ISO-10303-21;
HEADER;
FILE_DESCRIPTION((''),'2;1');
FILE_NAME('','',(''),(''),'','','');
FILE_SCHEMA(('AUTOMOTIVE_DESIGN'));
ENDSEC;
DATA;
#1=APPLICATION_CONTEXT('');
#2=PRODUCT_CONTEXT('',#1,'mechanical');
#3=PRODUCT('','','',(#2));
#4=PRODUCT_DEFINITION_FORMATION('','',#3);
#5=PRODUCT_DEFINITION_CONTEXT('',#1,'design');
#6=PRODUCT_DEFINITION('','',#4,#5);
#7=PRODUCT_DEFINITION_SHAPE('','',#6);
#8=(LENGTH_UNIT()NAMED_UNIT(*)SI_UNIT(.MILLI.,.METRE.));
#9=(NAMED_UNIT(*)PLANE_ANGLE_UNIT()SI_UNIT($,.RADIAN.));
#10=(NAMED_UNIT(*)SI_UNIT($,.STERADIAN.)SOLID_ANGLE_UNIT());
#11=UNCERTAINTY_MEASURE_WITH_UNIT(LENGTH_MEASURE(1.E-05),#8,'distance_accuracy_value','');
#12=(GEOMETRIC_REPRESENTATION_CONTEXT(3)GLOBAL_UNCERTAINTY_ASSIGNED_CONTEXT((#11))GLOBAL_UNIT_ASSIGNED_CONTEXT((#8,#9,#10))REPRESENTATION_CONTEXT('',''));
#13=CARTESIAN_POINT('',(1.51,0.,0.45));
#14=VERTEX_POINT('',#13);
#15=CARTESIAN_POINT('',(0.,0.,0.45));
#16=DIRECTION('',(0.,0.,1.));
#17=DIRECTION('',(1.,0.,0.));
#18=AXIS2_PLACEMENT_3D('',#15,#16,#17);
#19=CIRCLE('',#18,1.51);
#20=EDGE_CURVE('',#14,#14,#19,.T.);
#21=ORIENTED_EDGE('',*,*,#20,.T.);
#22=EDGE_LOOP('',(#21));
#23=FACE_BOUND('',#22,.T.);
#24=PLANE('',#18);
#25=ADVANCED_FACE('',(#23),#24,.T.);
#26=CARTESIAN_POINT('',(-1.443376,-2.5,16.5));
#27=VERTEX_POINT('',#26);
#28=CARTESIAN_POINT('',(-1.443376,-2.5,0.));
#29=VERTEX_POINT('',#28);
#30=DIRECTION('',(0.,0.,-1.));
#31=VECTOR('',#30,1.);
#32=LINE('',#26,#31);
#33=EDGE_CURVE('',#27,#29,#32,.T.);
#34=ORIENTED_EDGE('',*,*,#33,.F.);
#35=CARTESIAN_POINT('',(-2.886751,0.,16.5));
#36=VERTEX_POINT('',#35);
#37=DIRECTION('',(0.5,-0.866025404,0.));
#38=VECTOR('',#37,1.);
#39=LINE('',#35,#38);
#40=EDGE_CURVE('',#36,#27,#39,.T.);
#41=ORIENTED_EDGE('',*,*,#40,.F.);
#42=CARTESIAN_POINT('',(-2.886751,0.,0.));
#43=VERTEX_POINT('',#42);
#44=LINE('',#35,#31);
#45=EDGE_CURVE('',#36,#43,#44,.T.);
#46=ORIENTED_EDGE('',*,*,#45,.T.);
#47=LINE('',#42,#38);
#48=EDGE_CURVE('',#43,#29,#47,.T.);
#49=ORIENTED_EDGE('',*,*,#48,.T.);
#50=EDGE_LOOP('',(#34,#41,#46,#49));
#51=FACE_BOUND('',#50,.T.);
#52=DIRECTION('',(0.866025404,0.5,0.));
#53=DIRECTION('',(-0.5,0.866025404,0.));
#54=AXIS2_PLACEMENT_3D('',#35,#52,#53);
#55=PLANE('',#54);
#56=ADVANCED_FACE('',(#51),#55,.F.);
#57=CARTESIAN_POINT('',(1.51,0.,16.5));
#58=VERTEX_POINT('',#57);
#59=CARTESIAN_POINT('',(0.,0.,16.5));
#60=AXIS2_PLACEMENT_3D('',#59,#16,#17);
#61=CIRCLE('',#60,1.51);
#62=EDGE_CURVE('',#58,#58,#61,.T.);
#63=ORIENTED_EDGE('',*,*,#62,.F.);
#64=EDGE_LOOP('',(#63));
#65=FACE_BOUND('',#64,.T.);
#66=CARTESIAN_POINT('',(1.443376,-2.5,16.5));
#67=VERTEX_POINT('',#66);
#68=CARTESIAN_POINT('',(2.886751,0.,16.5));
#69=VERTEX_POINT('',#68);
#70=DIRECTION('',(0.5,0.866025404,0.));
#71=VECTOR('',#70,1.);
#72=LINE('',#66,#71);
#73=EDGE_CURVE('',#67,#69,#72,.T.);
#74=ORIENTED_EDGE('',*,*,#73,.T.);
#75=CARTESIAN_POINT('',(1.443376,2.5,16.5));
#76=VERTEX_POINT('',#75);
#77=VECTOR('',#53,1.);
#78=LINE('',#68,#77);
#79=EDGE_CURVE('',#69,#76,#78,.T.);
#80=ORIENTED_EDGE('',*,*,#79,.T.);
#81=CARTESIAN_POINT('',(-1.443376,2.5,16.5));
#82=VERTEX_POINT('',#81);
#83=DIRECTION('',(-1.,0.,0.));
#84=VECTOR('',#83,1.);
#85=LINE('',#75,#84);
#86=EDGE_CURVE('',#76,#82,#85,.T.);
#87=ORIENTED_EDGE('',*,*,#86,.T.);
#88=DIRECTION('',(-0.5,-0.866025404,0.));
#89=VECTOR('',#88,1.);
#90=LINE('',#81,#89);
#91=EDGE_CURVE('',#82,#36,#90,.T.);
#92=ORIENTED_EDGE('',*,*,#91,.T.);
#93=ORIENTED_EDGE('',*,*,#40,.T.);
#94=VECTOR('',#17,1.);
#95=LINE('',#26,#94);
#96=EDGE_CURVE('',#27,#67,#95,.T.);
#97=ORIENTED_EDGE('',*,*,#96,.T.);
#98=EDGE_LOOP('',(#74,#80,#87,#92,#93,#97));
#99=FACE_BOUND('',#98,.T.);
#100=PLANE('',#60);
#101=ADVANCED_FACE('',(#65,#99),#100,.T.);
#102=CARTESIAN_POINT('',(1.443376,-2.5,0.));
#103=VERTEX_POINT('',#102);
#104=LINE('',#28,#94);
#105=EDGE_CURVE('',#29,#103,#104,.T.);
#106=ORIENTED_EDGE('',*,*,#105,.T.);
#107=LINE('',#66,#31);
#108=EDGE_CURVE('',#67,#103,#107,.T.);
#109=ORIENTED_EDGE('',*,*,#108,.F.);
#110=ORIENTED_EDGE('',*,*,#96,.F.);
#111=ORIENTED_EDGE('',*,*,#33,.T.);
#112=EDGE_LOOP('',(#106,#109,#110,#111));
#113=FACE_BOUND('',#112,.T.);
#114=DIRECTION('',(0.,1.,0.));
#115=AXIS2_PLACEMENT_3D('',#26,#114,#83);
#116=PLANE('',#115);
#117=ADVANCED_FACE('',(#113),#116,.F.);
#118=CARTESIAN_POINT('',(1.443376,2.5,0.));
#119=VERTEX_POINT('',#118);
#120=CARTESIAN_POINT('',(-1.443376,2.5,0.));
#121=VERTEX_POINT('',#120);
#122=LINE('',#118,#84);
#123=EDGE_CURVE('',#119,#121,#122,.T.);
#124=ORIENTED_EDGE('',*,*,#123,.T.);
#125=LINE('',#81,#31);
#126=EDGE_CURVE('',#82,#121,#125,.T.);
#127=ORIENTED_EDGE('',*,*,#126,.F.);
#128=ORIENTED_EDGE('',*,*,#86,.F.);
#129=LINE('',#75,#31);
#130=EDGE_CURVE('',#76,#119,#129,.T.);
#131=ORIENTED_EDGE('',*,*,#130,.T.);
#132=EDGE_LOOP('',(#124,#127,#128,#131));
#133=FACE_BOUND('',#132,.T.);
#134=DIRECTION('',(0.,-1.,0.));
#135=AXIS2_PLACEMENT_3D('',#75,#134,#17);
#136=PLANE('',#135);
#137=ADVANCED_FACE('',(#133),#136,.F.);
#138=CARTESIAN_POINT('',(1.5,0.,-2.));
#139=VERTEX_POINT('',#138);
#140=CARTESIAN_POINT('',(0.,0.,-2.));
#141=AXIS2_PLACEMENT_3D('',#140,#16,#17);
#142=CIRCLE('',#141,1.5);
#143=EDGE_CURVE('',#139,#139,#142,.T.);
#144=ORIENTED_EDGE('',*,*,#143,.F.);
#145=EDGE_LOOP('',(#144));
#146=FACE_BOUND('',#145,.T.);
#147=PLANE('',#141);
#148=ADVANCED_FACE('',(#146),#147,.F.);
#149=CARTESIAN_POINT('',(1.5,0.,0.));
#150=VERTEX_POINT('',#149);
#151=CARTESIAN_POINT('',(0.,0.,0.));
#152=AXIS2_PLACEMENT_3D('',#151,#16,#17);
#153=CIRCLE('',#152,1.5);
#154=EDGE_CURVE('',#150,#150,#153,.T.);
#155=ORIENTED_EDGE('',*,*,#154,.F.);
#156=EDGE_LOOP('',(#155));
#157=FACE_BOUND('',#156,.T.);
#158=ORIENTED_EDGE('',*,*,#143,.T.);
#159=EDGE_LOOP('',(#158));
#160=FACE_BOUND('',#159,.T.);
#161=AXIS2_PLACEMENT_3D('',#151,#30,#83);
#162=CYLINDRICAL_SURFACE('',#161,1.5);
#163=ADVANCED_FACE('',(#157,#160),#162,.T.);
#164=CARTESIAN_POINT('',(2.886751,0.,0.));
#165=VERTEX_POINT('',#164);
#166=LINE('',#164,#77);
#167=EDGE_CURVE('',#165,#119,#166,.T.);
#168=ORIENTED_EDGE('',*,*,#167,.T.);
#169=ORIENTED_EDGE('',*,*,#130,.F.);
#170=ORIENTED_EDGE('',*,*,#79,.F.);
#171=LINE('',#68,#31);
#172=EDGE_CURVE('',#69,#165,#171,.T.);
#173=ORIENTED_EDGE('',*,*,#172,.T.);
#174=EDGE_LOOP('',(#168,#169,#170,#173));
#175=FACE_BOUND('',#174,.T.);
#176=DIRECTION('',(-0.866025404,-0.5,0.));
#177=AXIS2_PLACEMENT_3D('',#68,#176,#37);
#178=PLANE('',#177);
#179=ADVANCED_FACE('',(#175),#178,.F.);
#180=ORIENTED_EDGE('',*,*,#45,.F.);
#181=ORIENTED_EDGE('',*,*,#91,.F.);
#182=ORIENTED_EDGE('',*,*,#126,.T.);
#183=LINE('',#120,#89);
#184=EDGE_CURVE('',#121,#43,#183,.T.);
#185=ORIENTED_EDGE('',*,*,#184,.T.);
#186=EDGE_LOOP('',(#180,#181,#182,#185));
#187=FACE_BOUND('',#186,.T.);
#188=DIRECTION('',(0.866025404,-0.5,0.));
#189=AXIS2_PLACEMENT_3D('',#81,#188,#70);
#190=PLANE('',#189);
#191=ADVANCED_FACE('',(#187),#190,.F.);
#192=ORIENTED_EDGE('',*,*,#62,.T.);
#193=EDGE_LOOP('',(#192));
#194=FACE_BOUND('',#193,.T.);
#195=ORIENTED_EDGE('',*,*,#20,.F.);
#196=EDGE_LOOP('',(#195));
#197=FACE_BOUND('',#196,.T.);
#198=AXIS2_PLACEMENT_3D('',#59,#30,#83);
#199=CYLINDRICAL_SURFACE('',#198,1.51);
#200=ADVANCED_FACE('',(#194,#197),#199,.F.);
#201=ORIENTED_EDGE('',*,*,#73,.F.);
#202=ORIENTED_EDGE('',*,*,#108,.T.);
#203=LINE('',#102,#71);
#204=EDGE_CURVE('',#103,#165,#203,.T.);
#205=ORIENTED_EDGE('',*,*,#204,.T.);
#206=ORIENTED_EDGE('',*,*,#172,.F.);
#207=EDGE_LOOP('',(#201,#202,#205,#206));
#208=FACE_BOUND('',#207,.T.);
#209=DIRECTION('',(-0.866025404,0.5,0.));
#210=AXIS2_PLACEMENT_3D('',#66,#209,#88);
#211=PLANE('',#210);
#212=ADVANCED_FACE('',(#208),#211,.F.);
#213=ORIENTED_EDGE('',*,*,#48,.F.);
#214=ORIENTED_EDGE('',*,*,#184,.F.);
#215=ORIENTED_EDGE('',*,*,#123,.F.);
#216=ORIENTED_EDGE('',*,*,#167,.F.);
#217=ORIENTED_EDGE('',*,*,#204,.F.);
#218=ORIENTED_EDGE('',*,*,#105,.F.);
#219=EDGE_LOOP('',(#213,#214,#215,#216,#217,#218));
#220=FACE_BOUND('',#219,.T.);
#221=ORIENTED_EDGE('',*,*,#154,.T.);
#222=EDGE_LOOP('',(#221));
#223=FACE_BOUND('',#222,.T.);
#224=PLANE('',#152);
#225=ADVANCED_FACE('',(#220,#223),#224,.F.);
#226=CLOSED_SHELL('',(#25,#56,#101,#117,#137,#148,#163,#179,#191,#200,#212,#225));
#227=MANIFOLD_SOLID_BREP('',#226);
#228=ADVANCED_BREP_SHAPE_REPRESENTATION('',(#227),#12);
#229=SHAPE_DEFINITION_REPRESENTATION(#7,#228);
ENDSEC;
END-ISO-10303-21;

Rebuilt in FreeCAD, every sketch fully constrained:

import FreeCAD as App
import Part
import Sketcher

V = App.Vector
Q = App.Units.Quantity


def add_polygon(sketch, points):
    """Adds a closed chain of lines whose ends are joined by coincident constraints."""
    first, n = sketch.GeometryCount, len(points)
    for a, b in zip(points, points[1:] + points[:1]):
        sketch.addGeometry(Part.LineSegment(App.Vector(*a, 0), App.Vector(*b, 0)), False)
    for i in range(n):
        sketch.addConstraint(Sketcher.Constraint("Coincident", first + i, 2, first + (i + 1) % n, 1))

doc = App.newDocument("Part")
body = doc.addObject("PartDesign::Body", "Body")

# Sketch on XY plane
sketch1 = doc.addObject("Sketcher::SketchObject", "Sketch")
body.addObject(sketch1)
sketch1.AttachmentSupport = (doc.XY_Plane, [""])
sketch1.MapMode = "FlatFace"
add_polygon(sketch1, [(2.9, 0), (1.4, 2.5), (-1.4, 2.5), (-2.9, 0), (-1.4, -2.5), (1.4, -2.5)])  # lines 0-5
sketch1.addGeometry(Part.Circle(V(0, 0, 0), V(0, 0, 1), 1.5), False)  # 6
sketch1.addConstraint([
    Sketcher.Constraint("Horizontal", 1),
    Sketcher.Constraint("Horizontal", 4),
    Sketcher.Constraint("Coincident", 6, 3, -1, 1),
    Sketcher.Constraint("Symmetric", 0, 2, 3, 2, -1, 1),
    Sketcher.Constraint("Symmetric", 2, 2, 5, 2, -1, 1),
    Sketcher.Constraint("PointOnObject", 2, 2, -1),
    Sketcher.Constraint("Parallel", 2, 5),
    Sketcher.Constraint("Vertical", 1, 2, 3, 2),
    Sketcher.Constraint("Diameter", 6, 3.02),
    Sketcher.Constraint("Angle", 0, Q("120 deg")),
    Sketcher.Constraint("DistanceY", 3, 2, 1, 2, 5.0),
    Sketcher.Constraint("DistanceX", 1, 2, 1, 1, 2.886751),
])
pad1 = doc.addObject("PartDesign::Pad", "Pad")
body.addObject(pad1)
pad1.Profile = sketch1
pad1.Length = 16.5

# Sketch on XY plane
sketch2 = doc.addObject("Sketcher::SketchObject", "Sketch001")
body.addObject(sketch2)
sketch2.AttachmentSupport = (doc.XY_Plane, [""])
sketch2.MapMode = "FlatFace"
sketch2.addGeometry(Part.Circle(V(0, 0, 0), V(0, 0, 1), 1.9), False)
sketch2.addConstraint([
    Sketcher.Constraint("Coincident", 0, 3, -1, 1),
    Sketcher.Constraint("Diameter", 0, 3.7),
])
pad2 = doc.addObject("PartDesign::Pad", "Pad001")
body.addObject(pad2)
pad2.Profile = sketch2
pad2.Length = 0.45

# Sketch on XY plane
sketch3 = doc.addObject("Sketcher::SketchObject", "Sketch002")
body.addObject(sketch3)
sketch3.AttachmentSupport = (doc.XY_Plane, [""])
sketch3.MapMode = "FlatFace"
sketch3.AttachmentOffset = App.Placement(V(0, 0, -2), App.Rotation())
sketch3.addGeometry(Part.Circle(V(0, 0, 0), V(0, 0, 1), 1.5), False)
sketch3.addConstraint([
    Sketcher.Constraint("Coincident", 0, 3, -1, 1),
    Sketcher.Constraint("Diameter", 0, 3.0),
])
pad3 = doc.addObject("PartDesign::Pad", "Pad002")
body.addObject(pad3)
pad3.Profile = sketch3
pad3.Length = 2

doc.recompute()
